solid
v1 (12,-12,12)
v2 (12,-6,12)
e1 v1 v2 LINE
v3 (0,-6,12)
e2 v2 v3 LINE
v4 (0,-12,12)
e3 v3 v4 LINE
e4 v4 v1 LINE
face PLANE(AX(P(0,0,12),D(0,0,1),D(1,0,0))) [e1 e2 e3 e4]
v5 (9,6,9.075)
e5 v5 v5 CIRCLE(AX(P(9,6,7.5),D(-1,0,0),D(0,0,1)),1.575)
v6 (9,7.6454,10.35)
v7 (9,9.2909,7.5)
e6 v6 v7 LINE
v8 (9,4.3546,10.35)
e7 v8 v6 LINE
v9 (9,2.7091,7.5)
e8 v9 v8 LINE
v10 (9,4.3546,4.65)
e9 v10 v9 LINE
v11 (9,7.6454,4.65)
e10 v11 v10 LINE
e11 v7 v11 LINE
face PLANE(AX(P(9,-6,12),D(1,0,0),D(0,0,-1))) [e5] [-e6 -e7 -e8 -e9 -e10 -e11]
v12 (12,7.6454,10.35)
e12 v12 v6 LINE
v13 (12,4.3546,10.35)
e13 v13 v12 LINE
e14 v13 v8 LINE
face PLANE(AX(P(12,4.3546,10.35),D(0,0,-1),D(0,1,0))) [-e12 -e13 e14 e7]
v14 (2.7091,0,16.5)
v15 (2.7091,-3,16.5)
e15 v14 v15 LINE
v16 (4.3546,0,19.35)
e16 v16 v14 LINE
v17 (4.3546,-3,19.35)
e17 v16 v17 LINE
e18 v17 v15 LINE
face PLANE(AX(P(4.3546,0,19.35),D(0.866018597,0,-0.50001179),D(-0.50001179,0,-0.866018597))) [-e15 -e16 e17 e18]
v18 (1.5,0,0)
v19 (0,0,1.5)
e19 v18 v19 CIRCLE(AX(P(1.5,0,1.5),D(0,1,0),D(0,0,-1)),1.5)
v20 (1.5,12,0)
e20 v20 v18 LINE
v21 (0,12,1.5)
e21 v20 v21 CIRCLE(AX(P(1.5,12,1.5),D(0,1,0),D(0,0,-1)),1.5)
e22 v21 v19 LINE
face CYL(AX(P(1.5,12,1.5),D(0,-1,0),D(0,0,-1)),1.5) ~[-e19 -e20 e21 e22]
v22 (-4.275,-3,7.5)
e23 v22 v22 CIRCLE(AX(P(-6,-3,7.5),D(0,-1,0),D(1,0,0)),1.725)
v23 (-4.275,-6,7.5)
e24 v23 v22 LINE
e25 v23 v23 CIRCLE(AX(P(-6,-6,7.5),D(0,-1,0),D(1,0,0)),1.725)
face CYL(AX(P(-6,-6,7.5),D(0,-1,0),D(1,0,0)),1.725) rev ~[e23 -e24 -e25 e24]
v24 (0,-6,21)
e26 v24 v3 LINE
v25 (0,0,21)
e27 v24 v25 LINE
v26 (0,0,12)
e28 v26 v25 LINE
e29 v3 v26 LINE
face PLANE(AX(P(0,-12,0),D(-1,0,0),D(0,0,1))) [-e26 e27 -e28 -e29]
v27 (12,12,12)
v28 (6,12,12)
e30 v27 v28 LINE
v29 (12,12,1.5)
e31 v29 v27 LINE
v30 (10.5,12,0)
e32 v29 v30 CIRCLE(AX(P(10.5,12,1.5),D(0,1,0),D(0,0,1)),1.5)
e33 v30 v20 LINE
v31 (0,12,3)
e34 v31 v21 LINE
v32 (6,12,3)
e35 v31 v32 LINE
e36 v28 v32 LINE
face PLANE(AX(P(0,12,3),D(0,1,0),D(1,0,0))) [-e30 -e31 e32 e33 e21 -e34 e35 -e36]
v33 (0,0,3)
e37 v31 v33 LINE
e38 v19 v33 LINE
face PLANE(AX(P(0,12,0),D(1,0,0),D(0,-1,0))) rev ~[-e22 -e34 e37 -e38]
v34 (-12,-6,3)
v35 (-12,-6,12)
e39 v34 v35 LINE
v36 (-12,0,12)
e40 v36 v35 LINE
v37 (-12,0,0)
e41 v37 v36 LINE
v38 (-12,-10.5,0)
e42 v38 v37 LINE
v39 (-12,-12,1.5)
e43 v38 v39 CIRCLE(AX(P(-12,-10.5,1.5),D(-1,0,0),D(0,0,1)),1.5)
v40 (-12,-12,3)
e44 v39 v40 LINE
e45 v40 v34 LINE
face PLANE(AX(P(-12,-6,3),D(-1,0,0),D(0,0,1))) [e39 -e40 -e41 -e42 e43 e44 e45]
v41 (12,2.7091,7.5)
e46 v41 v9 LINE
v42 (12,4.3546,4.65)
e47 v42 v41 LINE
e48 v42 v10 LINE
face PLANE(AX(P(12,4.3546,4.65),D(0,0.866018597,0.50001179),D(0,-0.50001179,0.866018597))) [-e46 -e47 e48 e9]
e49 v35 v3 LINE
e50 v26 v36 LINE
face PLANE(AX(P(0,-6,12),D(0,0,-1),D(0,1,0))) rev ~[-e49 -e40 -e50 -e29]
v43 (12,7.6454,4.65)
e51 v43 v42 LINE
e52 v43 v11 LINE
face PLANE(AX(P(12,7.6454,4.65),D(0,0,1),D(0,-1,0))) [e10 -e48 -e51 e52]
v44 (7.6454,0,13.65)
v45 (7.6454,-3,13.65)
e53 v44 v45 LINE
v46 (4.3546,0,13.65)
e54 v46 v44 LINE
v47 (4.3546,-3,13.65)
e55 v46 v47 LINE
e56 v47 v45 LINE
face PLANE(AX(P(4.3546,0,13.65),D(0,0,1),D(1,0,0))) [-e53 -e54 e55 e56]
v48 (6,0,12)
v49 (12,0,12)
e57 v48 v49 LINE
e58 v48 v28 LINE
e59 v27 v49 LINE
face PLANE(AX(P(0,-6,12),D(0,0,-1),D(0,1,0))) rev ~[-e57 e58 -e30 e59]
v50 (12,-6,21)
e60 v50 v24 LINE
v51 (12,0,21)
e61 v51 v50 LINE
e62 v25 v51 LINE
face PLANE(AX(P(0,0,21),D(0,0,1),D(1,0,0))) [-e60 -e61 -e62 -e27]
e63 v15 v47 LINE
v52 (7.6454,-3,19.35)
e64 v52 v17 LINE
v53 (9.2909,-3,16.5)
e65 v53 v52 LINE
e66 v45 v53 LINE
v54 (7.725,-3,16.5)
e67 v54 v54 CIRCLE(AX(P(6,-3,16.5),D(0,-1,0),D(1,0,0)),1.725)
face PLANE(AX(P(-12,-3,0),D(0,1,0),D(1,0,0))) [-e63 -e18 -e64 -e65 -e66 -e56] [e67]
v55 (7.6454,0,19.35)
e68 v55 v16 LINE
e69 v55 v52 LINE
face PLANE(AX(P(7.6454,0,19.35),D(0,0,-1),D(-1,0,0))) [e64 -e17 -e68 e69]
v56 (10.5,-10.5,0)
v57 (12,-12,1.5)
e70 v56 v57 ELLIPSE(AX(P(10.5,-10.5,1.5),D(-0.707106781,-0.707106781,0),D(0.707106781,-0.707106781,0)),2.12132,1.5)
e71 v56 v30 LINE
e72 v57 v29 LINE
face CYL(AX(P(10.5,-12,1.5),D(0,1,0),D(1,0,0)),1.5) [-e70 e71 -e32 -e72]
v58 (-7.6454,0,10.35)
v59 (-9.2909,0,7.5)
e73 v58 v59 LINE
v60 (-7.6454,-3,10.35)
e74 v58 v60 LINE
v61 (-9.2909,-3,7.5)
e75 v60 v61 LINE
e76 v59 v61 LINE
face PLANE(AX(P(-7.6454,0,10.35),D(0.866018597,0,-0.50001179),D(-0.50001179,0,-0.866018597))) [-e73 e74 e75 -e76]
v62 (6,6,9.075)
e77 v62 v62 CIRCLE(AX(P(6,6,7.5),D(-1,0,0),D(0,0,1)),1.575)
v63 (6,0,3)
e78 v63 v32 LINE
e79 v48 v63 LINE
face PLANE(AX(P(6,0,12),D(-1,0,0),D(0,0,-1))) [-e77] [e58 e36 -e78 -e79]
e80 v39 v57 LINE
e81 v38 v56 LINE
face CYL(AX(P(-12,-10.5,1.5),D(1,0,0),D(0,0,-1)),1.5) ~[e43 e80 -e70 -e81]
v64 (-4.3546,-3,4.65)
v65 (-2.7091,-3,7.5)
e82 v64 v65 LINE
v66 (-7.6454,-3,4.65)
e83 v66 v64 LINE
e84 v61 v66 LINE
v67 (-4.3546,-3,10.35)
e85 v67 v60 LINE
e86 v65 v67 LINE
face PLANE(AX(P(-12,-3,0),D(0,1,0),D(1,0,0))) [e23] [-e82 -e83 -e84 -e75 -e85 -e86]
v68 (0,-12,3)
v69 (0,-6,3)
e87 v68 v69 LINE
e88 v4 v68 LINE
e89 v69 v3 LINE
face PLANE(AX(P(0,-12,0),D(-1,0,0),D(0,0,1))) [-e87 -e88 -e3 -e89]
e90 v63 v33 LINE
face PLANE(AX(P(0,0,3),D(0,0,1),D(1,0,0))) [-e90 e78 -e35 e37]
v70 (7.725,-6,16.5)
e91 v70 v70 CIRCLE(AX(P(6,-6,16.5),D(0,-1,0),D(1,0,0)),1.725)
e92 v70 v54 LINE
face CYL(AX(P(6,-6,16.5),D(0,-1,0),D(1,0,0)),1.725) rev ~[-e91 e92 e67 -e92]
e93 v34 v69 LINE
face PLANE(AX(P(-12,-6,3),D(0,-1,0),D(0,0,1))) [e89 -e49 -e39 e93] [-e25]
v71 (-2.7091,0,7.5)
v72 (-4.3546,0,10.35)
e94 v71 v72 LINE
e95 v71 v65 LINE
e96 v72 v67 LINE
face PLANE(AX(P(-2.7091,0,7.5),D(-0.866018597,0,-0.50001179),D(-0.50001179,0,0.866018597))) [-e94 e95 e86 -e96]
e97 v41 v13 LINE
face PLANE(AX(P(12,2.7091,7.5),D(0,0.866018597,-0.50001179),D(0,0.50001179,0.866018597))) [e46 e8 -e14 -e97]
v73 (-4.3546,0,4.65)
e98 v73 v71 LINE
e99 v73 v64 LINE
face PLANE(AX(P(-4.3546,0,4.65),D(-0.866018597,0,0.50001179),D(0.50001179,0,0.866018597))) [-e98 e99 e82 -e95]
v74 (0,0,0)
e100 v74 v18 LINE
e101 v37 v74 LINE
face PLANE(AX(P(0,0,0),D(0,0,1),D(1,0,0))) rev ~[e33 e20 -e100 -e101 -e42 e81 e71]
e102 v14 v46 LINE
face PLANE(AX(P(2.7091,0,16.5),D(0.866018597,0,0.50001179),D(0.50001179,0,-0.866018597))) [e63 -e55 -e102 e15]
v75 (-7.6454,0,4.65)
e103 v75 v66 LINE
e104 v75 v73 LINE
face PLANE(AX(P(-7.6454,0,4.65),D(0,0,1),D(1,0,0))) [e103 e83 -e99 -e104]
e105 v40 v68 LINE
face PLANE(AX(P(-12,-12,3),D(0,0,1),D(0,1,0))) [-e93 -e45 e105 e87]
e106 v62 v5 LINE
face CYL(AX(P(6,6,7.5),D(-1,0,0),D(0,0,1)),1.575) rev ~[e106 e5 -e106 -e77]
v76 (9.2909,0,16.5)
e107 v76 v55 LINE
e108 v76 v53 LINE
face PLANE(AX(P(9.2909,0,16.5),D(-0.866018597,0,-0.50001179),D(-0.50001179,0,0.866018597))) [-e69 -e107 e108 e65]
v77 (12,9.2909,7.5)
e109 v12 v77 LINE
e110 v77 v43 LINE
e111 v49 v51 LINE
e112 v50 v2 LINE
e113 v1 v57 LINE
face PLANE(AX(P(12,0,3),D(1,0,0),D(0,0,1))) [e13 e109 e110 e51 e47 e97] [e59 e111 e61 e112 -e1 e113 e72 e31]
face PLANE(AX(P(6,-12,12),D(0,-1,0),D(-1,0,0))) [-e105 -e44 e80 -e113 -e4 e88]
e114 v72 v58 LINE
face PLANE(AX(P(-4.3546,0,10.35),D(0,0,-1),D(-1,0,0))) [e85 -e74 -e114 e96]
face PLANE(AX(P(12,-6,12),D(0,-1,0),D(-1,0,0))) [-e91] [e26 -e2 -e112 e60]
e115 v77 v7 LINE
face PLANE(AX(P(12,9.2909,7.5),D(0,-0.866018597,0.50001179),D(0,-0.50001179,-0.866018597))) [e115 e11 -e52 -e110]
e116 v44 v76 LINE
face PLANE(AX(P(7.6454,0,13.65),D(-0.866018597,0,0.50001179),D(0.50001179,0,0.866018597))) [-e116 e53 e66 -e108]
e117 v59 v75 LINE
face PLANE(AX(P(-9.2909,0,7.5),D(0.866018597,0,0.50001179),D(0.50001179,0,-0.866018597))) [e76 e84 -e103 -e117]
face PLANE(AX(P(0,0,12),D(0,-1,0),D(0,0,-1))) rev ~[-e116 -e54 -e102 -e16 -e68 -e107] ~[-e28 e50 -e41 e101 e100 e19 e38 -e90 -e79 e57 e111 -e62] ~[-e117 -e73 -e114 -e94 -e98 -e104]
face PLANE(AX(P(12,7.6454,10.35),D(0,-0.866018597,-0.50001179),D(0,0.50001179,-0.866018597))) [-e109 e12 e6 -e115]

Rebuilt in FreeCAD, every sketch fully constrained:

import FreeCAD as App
import Part
import Sketcher
from FreeCAD import Vector
Q = App.Units.Quantity


def edges_at(feature, points):
    """Names of the edges that pass closest to the given points."""
    edges = feature.Shape.Edges
    near = lambda p: min(range(len(edges)), key=lambda i: edges[i].distToShape(Part.Vertex(*p))[0])
    return sorted({f"Edge{near(p) + 1}" for p in points})


def add_polygon(sketch, points):
    """Adds a closed chain of lines whose ends are joined by coincident constraints."""
    first, n = sketch.GeometryCount, len(points)
    for a, b in zip(points, points[1:] + points[:1]):
        sketch.addGeometry(Part.LineSegment(App.Vector(*a, 0), App.Vector(*b, 0)), False)
    for i in range(n):
        sketch.addConstraint(Sketcher.Constraint("Coincident", first + i, 2, first + (i + 1) % n, 1))

doc = App.newDocument("Part")
params = doc.addObject("Spreadsheet::Sheet", "Params")
for row, (alias, value) in enumerate([
    ("sketch1_width", "12 mm"),
    ("pad1_length", "3 mm"),
    ("sketch2_width", "12 mm"),
    ("pad2_length", "9 mm"),
    ("sketch3_width", "12 mm"),
    ("sketch3_height", "6 mm"),
    ("pad3_length", "9 mm"),
    ("sketch4_diameter", "3.45 mm"),
    ("pocket1_length", "3 mm"),
    ("pocket2_length", "3 mm"),
    ("sketch6_diameter", "3.45 mm"),
    ("pocket3_length", "3 mm"),
    ("pocket4_length", "3 mm"),
    ("sketch8_width", "12 mm"),
    ("sketch9_width", "6 mm"),
    ("sketch9_height", "9 mm"),
    ("pocket6_length", "12 mm"),
    ("sketch10_width", "6 mm"),
    ("sketch10_height", "9 mm"),
    ("pad4_length", "12 mm"),
    ("sketch11_diameter", "3.15 mm"),
    ("pocket7_length", "3 mm"),
    ("pocket8_length", "3 mm"),
    ("sketch13_width", "6 mm"),
    ("sketch13_height", "9 mm"),
    ("pad5_length", "12 mm"),
    ("sketch14_width", "6 mm"),
    ("sketch14_height", "9 mm"),
    ("pocket9_length", "12 mm"),
    ("sketch15_diameter", "3.45 mm"),
    ("pocket10_length", "3 mm"),
    ("pocket11_length", "3 mm"),
    ("sketch17_width", "12 mm"),
    ("sketch17_height", "6 mm"),
    ("pad6_length", "9 mm"),
    ("sketch18_width", "12 mm"),
    ("sketch18_height", "6 mm"),
    ("pocket12_length", "9 mm"),
    ("sketch19_diameter", "3.45 mm"),
    ("pocket13_length", "3 mm"),
    ("pocket14_length", "3 mm"),
    ("fillet_radius", "1.5 mm"),
], start=1):
    params.set(f"A{row}", alias)
    params.set(f"B{row}", "=" + value)
    params.setAlias(f"B{row}", alias)

body = doc.addObject("PartDesign::Body", "Body")

# Sketch on XY plane
sketch1 = body.newObject("Sketcher::SketchObject", "Sketch")
sketch1.AttachmentSupport = (doc.getObject("XY_Plane"), [""])
sketch1.MapMode = "FlatFace"
add_polygon(sketch1, [(0, 12), (0, 0), (-12, 0), (-12, -12), (0, -12), (0, -24), (12, -24), (12, -12), (24, -12), (24, 0), (12, 0), (12, 12)])  # lines 0-11
sketch1.addConstraint(Sketcher.Constraint("Vertical", 0))
sketch1.addConstraint(Sketcher.Constraint("Horizontal", 1))
sketch1.addConstraint(Sketcher.Constraint("Vertical", 2))
sketch1.addConstraint(Sketcher.Constraint("Horizontal", 3))
sketch1.addConstraint(Sketcher.Constraint("Vertical", 4))
sketch1.addConstraint(Sketcher.Constraint("Horizontal", 5))
sketch1.addConstraint(Sketcher.Constraint("Vertical", 6))
sketch1.addConstraint(Sketcher.Constraint("Horizontal", 7))
sketch1.addConstraint(Sketcher.Constraint("Vertical", 8))
sketch1.addConstraint(Sketcher.Constraint("Horizontal", 9))
sketch1.addConstraint(Sketcher.Constraint("Vertical", 10))
sketch1.addConstraint(Sketcher.Constraint("Horizontal", 11))
sketch1.addConstraint(Sketcher.Constraint("Coincident", 0, 2, -1, 1))
sketch1.addConstraint(Sketcher.Constraint("Symmetric", 1, 2, 9, 2, -1, 1))
sketch1.addConstraint(Sketcher.Constraint("Symmetric", 3, 2, 11, 2, -1, 1))
sketch1.addConstraint(Sketcher.Constraint("Symmetric", 2, 2, 6, 2, -2))
sketch1.addConstraint(Sketcher.Constraint("Equal", 5, 7))
sketch1.addConstraint(Sketcher.Constraint("Equal", 11, 0))
sketch1.addConstraint(Sketcher.Constraint("Equal", 2, 4))
sketch1.addConstraint(Sketcher.Constraint("DistanceX", 1, 2, 1, 1, 12.0))
sketch1.setExpression("Constraints[31]", "Params.sketch1_width")
pad1 = body.newObject("PartDesign::Pad", "Pad")
pad1.Profile = sketch1
pad1.setExpression("Length", "Params.pad1_length")

# Sketch on XY plane
sketch2 = body.newObject("Sketcher::SketchObject", "Sketch001")
sketch2.AttachmentSupport = (doc.getObject("XY_Plane"), [""])
sketch2.MapMode = "FlatFace"
sketch2.AttachmentOffset = App.Placement(Vector(0, 0, 3), App.Rotation())
add_polygon(sketch2, [(0, -6), (-12, -6), (-12, -12), (0, -12), (0, -24), (6, -24), (6, -12), (24, -12), (24, -6), (12, -6), (12, 0), (6, 0), (6, 12), (0, 12)])  # lines 0-13
sketch2.addConstraint(Sketcher.Constraint("Horizontal", 0))
sketch2.addConstraint(Sketcher.Constraint("Vertical", 1))
sketch2.addConstraint(Sketcher.Constraint("Horizontal", 2))
sketch2.addConstraint(Sketcher.Constraint("Vertical", 3))
sketch2.addConstraint(Sketcher.Constraint("Horizontal", 4))
sketch2.addConstraint(Sketcher.Constraint("Vertical", 5))
sketch2.addConstraint(Sketcher.Constraint("Horizontal", 6))
sketch2.addConstraint(Sketcher.Constraint("Vertical", 7))
sketch2.addConstraint(Sketcher.Constraint("Horizontal", 8))
sketch2.addConstraint(Sketcher.Constraint("Vertical", 9))
sketch2.addConstraint(Sketcher.Constraint("Horizontal", 10))
sketch2.addConstraint(Sketcher.Constraint("Vertical", 11))
sketch2.addConstraint(Sketcher.Constraint("Horizontal", 12))
sketch2.addConstraint(Sketcher.Constraint("Vertical", 13))
sketch2.addConstraint(Sketcher.Constraint("Symmetric", 2, 2, 12, 2, -1, 1))
sketch2.addConstraint(Sketcher.Constraint("Symmetric", 0, 2, 8, 2, -2))
sketch2.addConstraint(Sketcher.Constraint("Symmetric", 5, 2, 11, 2, -1))
sketch2.addConstraint(Sketcher.Constraint("PointOnObject", 2, 2, -2))
sketch2.addConstraint(Sketcher.Constraint("PointOnObject", 9, 2, -1))
sketch2.addConstraint(Sketcher.Constraint("Equal", 2, 8))
sketch2.addConstraint(Sketcher.Constraint("Equal", 4, 10))
sketch2.addConstraint(Sketcher.Constraint("Equal", 12, 1))
sketch2.addConstraint(Sketcher.Constraint("Equal", 8, 3))
sketch2.addConstraint(Sketcher.Constraint("Equal", 7, 9))
sketch2.addConstraint(Sketcher.Constraint("DistanceX", 0, 2, 0, 1, 12.0))
sketch2.setExpression("Constraints[38]", "Params.sketch2_width")
pad2 = body.newObject("PartDesign::Pad", "Pad001")
pad2.Profile = sketch2
pad2.setExpression("Length", "Params.pad2_length")

# Sketch on XY plane
sketch3 = body.newObject("Sketcher::SketchObject", "Sketch002")
sketch3.AttachmentSupport = (doc.getObject("XY_Plane"), [""])
sketch3.MapMode = "FlatFace"
sketch3.AttachmentOffset = App.Placement(Vector(0, 0, 12), App.Rotation())
add_polygon(sketch3, [(12, -6), (0, -6), (0, -12), (12, -12)])  # lines 0-3
sketch3.addConstraint(Sketcher.Constraint("Horizontal", 0))
sketch3.addConstraint(Sketcher.Constraint("Vertical", 1))
sketch3.addConstraint(Sketcher.Constraint("Horizontal", 2))
sketch3.addConstraint(Sketcher.Constraint("Vertical", 3))
sketch3.addConstraint(Sketcher.Constraint("PointOnObject", 0, 2, -2))
sketch3.addConstraint(Sketcher.Constraint("DistanceX", 0, 2, 0, 1, 12.0))
sketch3.addConstraint(Sketcher.Constraint("DistanceY", 1, 2, 1, 1, 6.0))
sketch3.addConstraint(Sketcher.Constraint("DistanceY", 0, 2, -1, 1, 6.0))
sketch3.setExpression("Constraints[9]", "Params.sketch3_width")
sketch3.setExpression("Constraints[10]", "Params.sketch3_height")
pad3 = body.newObject("PartDesign::Pad", "Pad002")
pad3.Profile = sketch3
pad3.setExpression("Length", "Params.pad3_length")

# Sketch on XZ plane
sketch4 = body.newObject("Sketcher::SketchObject", "Sketch003")
sketch4.AttachmentSupport = (doc.getObject("XZ_Plane"), [""])
sketch4.MapMode = "FlatFace"
sketch4.AttachmentOffset = App.Placement(Vector(0, 0, 6), App.Rotation())
sketch4.addGeometry(Part.Circle(Vector(-6, 7.5, 0), Vector(0, 0, 1), 1.7), False)
sketch4.addGeometry(Part.Circle(Vector(6, 16.5, 0), Vector(0, 0, 1), 1.7), False)
sketch4.addGeometry(Part.Circle(Vector(18, 7.5, 0), Vector(0, 0, 1), 1.7), False)
sketch4.addConstraint(Sketcher.Constraint("Equal", 0, 1))
sketch4.addConstraint(Sketcher.Constraint("Equal", 1, 2))
sketch4.addConstraint(Sketcher.Constraint("Horizontal", 0, 3, 2, 3))
sketch4.addConstraint(Sketcher.Constraint("Diameter", 0, 3.45))
sketch4.addConstraint(Sketcher.Constraint("DistanceX", 0, 3, -1, 1, 6.0))
sketch4.addConstraint(Sketcher.Constraint("DistanceX", -1, 1, 1, 3, 6.0))
sketch4.addConstraint(Sketcher.Constraint("DistanceX", -1, 1, 2, 3, 18.0))
sketch4.addConstraint(Sketcher.Constraint("DistanceY", 0, 3, 1, 3, 9.0))
sketch4.addConstraint(Sketcher.Constraint("DistanceY", -1, 1, 0, 3, 7.5))
sketch4.setExpression("Constraints[3]", "Params.sketch4_diameter")
pocket1 = body.newObject("PartDesign::Pocket", "Pocket")
pocket1.Profile = sketch4
pocket1.setExpression("Length", "Params.pocket1_length")
pocket1.Reversed = True

# Sketch on XZ plane
sketch5 = body.newObject("Sketcher::SketchObject", "Sketch004")
sketch5.AttachmentSupport = (doc.getObject("XZ_Plane"), [""])
sketch5.MapMode = "FlatFace"
sketch5.AttachmentOffset = App.Placement(Vector(0, 0, 12), App.Rotation())
add_polygon(sketch5, [(-2.7, 7.5), (-4.4, 10.3), (-7.6, 10.3), (-9.3, 7.5), (-7.6, 4.7), (-4.4, 4.7)])  # lines 0-5
add_polygon(sketch5, [(21.3, 7.5), (19.6, 10.3), (16.4, 10.3), (14.7, 7.5), (16.4, 4.7), (19.6, 4.7)])  # lines 6-11
add_polygon(sketch5, [(9.3, 16.5), (7.6, 19.4), (4.4, 19.4), (2.7, 16.5), (4.4, 13.7), (7.6, 13.7)])  # lines 12-17
sketch5.addConstraint(Sketcher.Constraint("Horizontal", 1))
sketch5.addConstraint(Sketcher.Constraint("Horizontal", 4))
sketch5.addConstraint(Sketcher.Constraint("Horizontal", 7))
sketch5.addConstraint(Sketcher.Constraint("Horizontal", 10))
sketch5.addConstraint(Sketcher.Constraint("Horizontal", 13))
sketch5.addConstraint(Sketcher.Constraint("Horizontal", 16))
sketch5.addConstraint(Sketcher.Constraint("Parallel", 0, 3))
sketch5.addConstraint(Sketcher.Constraint("Parallel", 2, 5))
sketch5.addConstraint(Sketcher.Constraint("Parallel", 3, 6))
sketch5.addConstraint(Sketcher.Constraint("Parallel", 5, 8))
sketch5.addConstraint(Sketcher.Constraint("Parallel", 6, 9))
sketch5.addConstraint(Sketcher.Constraint("Parallel", 8, 11))
sketch5.addConstraint(Sketcher.Constraint("Parallel", 9, 12))
sketch5.addConstraint(Sketcher.Constraint("Parallel", 11, 14))
sketch5.addConstraint(Sketcher.Constraint("Parallel", 12, 15))
sketch5.addConstraint(Sketcher.Constraint("Parallel", 14, 17))
sketch5.addConstraint(Sketcher.Constraint("Horizontal", 2, 2, 5, 2))
sketch5.addConstraint(Sketcher.Constraint("Horizontal", 1, 2, 6, 2))
sketch5.addConstraint(Sketcher.Constraint("Horizontal", 5, 2, 8, 2))
sketch5.addConstraint(Sketcher.Constraint("Horizontal", 4, 2, 9, 2))
sketch5.addConstraint(Sketcher.Constraint("Horizontal", 8, 2, 11, 2))
sketch5.addConstraint(Sketcher.Constraint("Horizontal", 14, 2, 17, 2))
sketch5.addConstraint(Sketcher.Constraint("Vertical", 1, 2, 3, 2))
sketch5.addConstraint(Sketcher.Constraint("Vertical", 0, 2, 4, 2))
sketch5.addConstraint(Sketcher.Constraint("Vertical", 13, 2, 15, 2))
sketch5.addConstraint(Sketcher.Constraint("Equal", 4, 7))
sketch5.addConstraint(Sketcher.Constraint("Equal", 10, 13))
sketch5.addConstraint(Sketcher.Constraint("Equal", 11, 12))
sketch5.addConstraint(Sketcher.Constraint("Angle", 0, Q("120.0008 deg")))
sketch5.addConstraint(Sketcher.Constraint("DistanceY", 2, 2, 1, 2, 2.85))
sketch5.addConstraint(Sketcher.Constraint("DistanceX", 0, 2, 6, 2, 24.0))
sketch5.addConstraint(Sketcher.Constraint("DistanceY", 7, 2, 12, 2, 9.0))
sketch5.addConstraint(Sketcher.Constraint("DistanceX", 12, 2, 6, 2, 12.0))
sketch5.addConstraint(Sketcher.Constraint("DistanceY", -1, 1, 2, 2, 7.5))
sketch5.addConstraint(Sketcher.Constraint("DistanceX", 1, 2, 1, 1, 3.2908))
sketch5.addConstraint(Sketcher.Constraint("DistanceX", 2, 2, -1, 1, 9.291))
pocket2 = body.newObject("PartDesign::Pocket", "Pocket001")
pocket2.Profile = sketch5
pocket2.setExpression("Length", "Params.pocket2_length")

# Sketch on YZ plane
sketch6 = body.newObject("Sketcher::SketchObject", "Sketch005")
sketch6.AttachmentSupport = (doc.getObject("YZ_Plane"), [""])
sketch6.MapMode = "FlatFace"
sketch6.AttachmentOffset = App.Placement(Vector(0, 0, 6), App.Rotation())
sketch6.addGeometry(Part.Circle(Vector(6, 7.5, 0), Vector(0, 0, 1), 1.7), False)
sketch6.addGeometry(Part.Circle(Vector(-18, 7.5, 0), Vector(0, 0, 1), 1.7), False)
sketch6.addConstraint(Sketcher.Constraint("Equal", 0, 1))
sketch6.addConstraint(Sketcher.Constraint("Horizontal", 0, 3, 1, 3))
sketch6.addConstraint(Sketcher.Constraint("Diameter", 0, 3.45))
sketch6.addConstraint(Sketcher.Constraint("DistanceX", -1, 1, 0, 3, 6.0))
sketch6.addConstraint(Sketcher.Constraint("DistanceX", 1, 3, -1, 1, 18.0))
sketch6.addConstraint(Sketcher.Constraint("DistanceY", -1, 1, 0, 3, 7.5))
sketch6.setExpression("Constraints[2]", "Params.sketch6_diameter")
pocket3 = body.newObject("PartDesign::Pocket", "Pocket002")
pocket3.Profile = sketch6
pocket3.setExpression("Length", "Params.pocket3_length")

# Sketch on YZ plane
sketch7 = body.newObject("Sketcher::SketchObject", "Sketch006")
sketch7.AttachmentSupport = (doc.getObject("YZ_Plane"), [""])
sketch7.MapMode = "FlatFace"
add_polygon(sketch7, [(9.3, 7.5), (7.6, 4.7), (4.4, 4.7), (2.7, 7.5), (4.4, 10.3), (7.6, 10.3)])  # lines 0-5
add_polygon(sketch7, [(-14.7, 7.5), (-16.4, 4.7), (-19.6, 4.7), (-21.3, 7.5), (-19.6, 10.3), (-16.4, 10.3)])  # lines 6-11
sketch7.addConstraint(Sketcher.Constraint("Horizontal", 1))
sketch7.addConstraint(Sketcher.Constraint("Horizontal", 4))
sketch7.addConstraint(Sketcher.Constraint("Horizontal", 7))
sketch7.addConstraint(Sketcher.Constraint("Horizontal", 10))
sketch7.addConstraint(Sketcher.Constraint("Parallel", 0, 3))
sketch7.addConstraint(Sketcher.Constraint("Parallel", 2, 5))
sketch7.addConstraint(Sketcher.Constraint("Parallel", 3, 6))
sketch7.addConstraint(Sketcher.Constraint("Parallel", 5, 8))
sketch7.addConstraint(Sketcher.Constraint("Parallel", 6, 9))
sketch7.addConstraint(Sketcher.Constraint("Parallel", 8, 11))
sketch7.addConstraint(Sketcher.Constraint("Horizontal", 2, 2, 5, 2))
sketch7.addConstraint(Sketcher.Constraint("Horizontal", 1, 2, 6, 2))
sketch7.addConstraint(Sketcher.Constraint("Horizontal", 5, 2, 8, 2))
sketch7.addConstraint(Sketcher.Constraint("Horizontal", 4, 2, 9, 2))
sketch7.addConstraint(Sketcher.Constraint("Horizontal", 8, 2, 11, 2))
sketch7.addConstraint(Sketcher.Constraint("Vertical", 1, 2, 3, 2))
sketch7.addConstraint(Sketcher.Constraint("Vertical", 0, 2, 4, 2))
sketch7.addConstraint(Sketcher.Constraint("Equal", 4, 7))
sketch7.addConstraint(Sketcher.Constraint("Angle", 0, Q("-120.0008 deg")))
sketch7.addConstraint(Sketcher.Constraint("DistanceY", 1, 2, 2, 2, 2.85))
sketch7.addConstraint(Sketcher.Constraint("DistanceX", 6, 2, 0, 2, 24.0))
sketch7.addConstraint(Sketcher.Constraint("DistanceY", -1, 1, 2, 2, 7.5))
sketch7.addConstraint(Sketcher.Constraint("DistanceX", 1, 2, 1, 1, 3.2908))
sketch7.addConstraint(Sketcher.Constraint("DistanceX", -1, 1, 2, 2, 2.709))
pocket4 = body.newObject("PartDesign::Pocket", "Pocket003")
pocket4.Profile = sketch7
pocket4.setExpression("Length", "Params.pocket4_length")
pocket4.Reversed = True

# Sketch on XY plane
sketch8 = body.newObject("Sketcher::SketchObject", "Sketch007")
sketch8.AttachmentSupport = (doc.getObject("XY_Plane"), [""])
sketch8.MapMode = "FlatFace"
add_polygon(sketch8, [(0, -12), (12, -12), (12, -24), (0, -24)])  # lines 0-3
add_polygon(sketch8, [(24, 0), (24, -12), (12, -12), (12, 0)])  # lines 4-7
sketch8.addConstraint(Sketcher.Constraint("Horizontal", 0))
sketch8.addConstraint(Sketcher.Constraint("Vertical", 1))
sketch8.addConstraint(Sketcher.Constraint("Horizontal", 2))
sketch8.addConstraint(Sketcher.Constraint("Vertical", 3))
sketch8.addConstraint(Sketcher.Constraint("Vertical", 4))
sketch8.addConstraint(Sketcher.Constraint("Horizontal", 5))
sketch8.addConstraint(Sketcher.Constraint("Vertical", 6))
sketch8.addConstraint(Sketcher.Constraint("Horizontal", 7))
sketch8.addConstraint(Sketcher.Constraint("Coincident", 5, 2, 0, 2))
sketch8.addConstraint(Sketcher.Constraint("PointOnObject", 2, 2, -2))
sketch8.addConstraint(Sketcher.Constraint("PointOnObject", 6, 2, -1))
sketch8.addConstraint(Sketcher.Constraint("Equal", 2, 5))
sketch8.addConstraint(Sketcher.Constraint("Equal", 7, 1))
sketch8.addConstraint(Sketcher.Constraint("Equal", 3, 4))
sketch8.addConstraint(Sketcher.Constraint("DistanceX", 0, 1, 0, 2, 12.0))
sketch8.setExpression("Constraints[22]", "Params.sketch8_width")
pocket5 = body.newObject("PartDesign::Pocket", "Pocket004")
pocket5.Profile = sketch8
pocket5.Type = "ThroughAll"
pocket5.Reversed = True

# Sketch on XZ plane
sketch9 = body.newObject("Sketcher::SketchObject", "Sketch008")
sketch9.AttachmentSupport = (doc.getObject("XZ_Plane"), [""])
sketch9.MapMode = "FlatFace"
sketch9.AttachmentOffset = App.Placement(Vector(0, 0, -12), App.Rotation())
add_polygon(sketch9, [(0, 12), (6, 12), (6, 3), (0, 3)])  # lines 0-3
sketch9.addConstraint(Sketcher.Constraint("Horizontal", 0))
sketch9.addConstraint(Sketcher.Constraint("Vertical", 1))
sketch9.addConstraint(Sketcher.Constraint("Horizontal", 2))
sketch9.addConstraint(Sketcher.Constraint("Vertical", 3))
sketch9.addConstraint(Sketcher.Constraint("PointOnObject", 2, 2, -2))
sketch9.addConstraint(Sketcher.Constraint("DistanceX", 0, 1, 0, 2, 6.0))
sketch9.addConstraint(Sketcher.Constraint("DistanceY", 1, 2, 1, 1, 9.0))
sketch9.addConstraint(Sketcher.Constraint("DistanceY", -1, 1, 0, 2, 12.0))
sketch9.setExpression("Constraints[9]", "Params.sketch9_width")
sketch9.setExpression("Constraints[10]", "Params.sketch9_height")
pocket6 = body.newObject("PartDesign::Pocket", "Pocket005")
pocket6.Profile = sketch9
pocket6.setExpression("Length", "Params.pocket6_length")
pocket6.Reversed = True

# Sketch on XZ plane
sketch10 = body.newObject("Sketcher::SketchObject", "Sketch009")
sketch10.AttachmentSupport = (doc.getObject("XZ_Plane"), [""])
sketch10.MapMode = "FlatFace"
add_polygon(sketch10, [(12, 12), (12, 3), (6, 3), (6, 12)])  # lines 0-3
sketch10.addConstraint(Sketcher.Constraint("Vertical", 0))
sketch10.addConstraint(Sketcher.Constraint("Horizontal", 1))
sketch10.addConstraint(Sketcher.Constraint("Vertical", 2))
sketch10.addConstraint(Sketcher.Constraint("Horizontal", 3))
sketch10.addConstraint(Sketcher.Constraint("DistanceX", 1, 2, 1, 1, 6.0))
sketch10.addConstraint(Sketcher.Constraint("DistanceY", 0, 2, 0, 1, 9.0))
sketch10.addConstraint(Sketcher.Constraint("DistanceX", -1, 1, 0, 2, 12.0))
sketch10.addConstraint(Sketcher.Constraint("DistanceY", -1, 1, 0, 2, 3.0))
sketch10.setExpression("Constraints[8]", "Params.sketch10_width")
sketch10.setExpression("Constraints[9]", "Params.sketch10_height")
pad4 = body.newObject("PartDesign::Pad", "Pad003")
pad4.Profile = sketch10
pad4.setExpression("Length", "Params.pad4_length")
pad4.Reversed = True

# Sketch on YZ plane
sketch11 = body.newObject("Sketcher::SketchObject", "Sketch010")
sketch11.AttachmentSupport = (doc.getObject("YZ_Plane"), [""])
sketch11.MapMode = "FlatFace"
sketch11.AttachmentOffset = App.Placement(Vector(0, 0, 6), App.Rotation())
sketch11.addGeometry(Part.Circle(Vector(6, 7.5, 0), Vector(0, 0, 1), 1.6), False)
sketch11.addConstraint(Sketcher.Constraint("Diameter", 0, 3.15))
sketch11.addConstraint(Sketcher.Constraint("DistanceX", -1, 1, 0, 3, 6.0))
sketch11.addConstraint(Sketcher.Constraint("DistanceY", -1, 1, 0, 3, 7.5))
sketch11.setExpression("Constraints[0]", "Params.sketch11_diameter")
pocket7 = body.newObject("PartDesign::Pocket", "Pocket006")
pocket7.Profile = sketch11
pocket7.setExpression("Length", "Params.pocket7_length")
pocket7.Reversed = True

# Sketch on YZ plane
sketch12 = body.newObject("Sketcher::SketchObject", "Sketch011")
sketch12.AttachmentSupport = (doc.getObject("YZ_Plane"), [""])
sketch12.MapMode = "FlatFace"
sketch12.AttachmentOffset = App.Placement(Vector(0, 0, 12), App.Rotation())
add_polygon(sketch12, [(9.3, 7.5), (7.6, 10.3), (4.4, 10.3), (2.7, 7.5), (4.4, 4.7), (7.6, 4.7)])  # lines 0-5
sketch12.addConstraint(Sketcher.Constraint("Horizontal", 1))
sketch12.addConstraint(Sketcher.Constraint("Horizontal", 4))
sketch12.addConstraint(Sketcher.Constraint("Parallel", 0, 3))
sketch12.addConstraint(Sketcher.Constraint("Parallel", 2, 5))
sketch12.addConstraint(Sketcher.Constraint("Horizontal", 2, 2, 5, 2))
sketch12.addConstraint(Sketcher.Constraint("Vertical", 1, 2, 3, 2))
sketch12.addConstraint(Sketcher.Constraint("Vertical", 0, 2, 4, 2))
sketch12.addConstraint(Sketcher.Constraint("DistanceY", 3, 2, 1, 2, 5.7))
sketch12.addConstraint(Sketcher.Constraint("Angle", 0, Q("120.0008 deg")))
sketch12.addConstraint(Sketcher.Constraint("DistanceY", -1, 1, 2, 2, 7.5))
sketch12.addConstraint(Sketcher.Constraint("DistanceX", 1, 2, 1, 1, 3.2908))
sketch12.addConstraint(Sketcher.Constraint("DistanceX", -1, 1, 2, 2, 2.709))
pocket8 = body.newObject("PartDesign::Pocket", "Pocket007")
pocket8.Profile = sketch12
pocket8.setExpression("Length", "Params.pocket8_length")

# Sketch on YZ plane
sketch13 = body.newObject("Sketcher::SketchObject", "Sketch012")
sketch13.AttachmentSupport = (doc.getObject("YZ_Plane"), [""])
sketch13.MapMode = "FlatFace"
add_polygon(sketch13, [(-6, 12), (0, 12), (0, 3), (-6, 3)])  # lines 0-3
sketch13.addConstraint(Sketcher.Constraint("Horizontal", 0))
sketch13.addConstraint(Sketcher.Constraint("Vertical", 1))
sketch13.addConstraint(Sketcher.Constraint("Horizontal", 2))
sketch13.addConstraint(Sketcher.Constraint("Vertical", 3))
sketch13.addConstraint(Sketcher.Constraint("PointOnObject", 0, 2, -2))
sketch13.addConstraint(Sketcher.Constraint("DistanceX", 0, 1, 0, 2, 6.0))
sketch13.addConstraint(Sketcher.Constraint("DistanceY", 1, 2, 1, 1, 9.0))
sketch13.addConstraint(Sketcher.Constraint("DistanceY", -1, 1, 0, 2, 12.0))
sketch13.setExpression("Constraints[9]", "Params.sketch13_width")
sketch13.setExpression("Constraints[10]", "Params.sketch13_height")
pad5 = body.newObject("PartDesign::Pad", "Pad004")
pad5.Profile = sketch13
pad5.setExpression("Length", "Params.pad5_length")
pad5.Reversed = True

# Sketch on YZ plane
sketch14 = body.newObject("Sketcher::SketchObject", "Sketch013")
sketch14.AttachmentSupport = (doc.getObject("YZ_Plane"), [""])
sketch14.MapMode = "FlatFace"
sketch14.AttachmentOffset = App.Placement(Vector(0, 0, -12), App.Rotation())
add_polygon(sketch14, [(-12, 3), (-12, 12), (-6, 12), (-6, 3)])  # lines 0-3
sketch14.addConstraint(Sketcher.Constraint("Vertical", 0))
sketch14.addConstraint(Sketcher.Constraint("Horizontal", 1))
sketch14.addConstraint(Sketcher.Constraint("Vertical", 2))
sketch14.addConstraint(Sketcher.Constraint("Horizontal", 3))
sketch14.addConstraint(Sketcher.Constraint("DistanceX", 1, 1, 1, 2, 6.0))
sketch14.addConstraint(Sketcher.Constraint("DistanceY", 0, 1, 0, 2, 9.0))
sketch14.addConstraint(Sketcher.Constraint("DistanceX", 1, 2, -1, 1, 6.0))
sketch14.addConstraint(Sketcher.Constraint("DistanceY", -1, 1, 0, 2, 12.0))
sketch14.setExpression("Constraints[8]", "Params.sketch14_width")
sketch14.setExpression("Constraints[9]", "Params.sketch14_height")
pocket9 = body.newObject("PartDesign::Pocket", "Pocket008")
pocket9.Profile = sketch14
pocket9.setExpression("Length", "Params.pocket9_length")
pocket9.Reversed = True

# Sketch on XZ plane
sketch15 = body.newObject("Sketcher::SketchObject", "Sketch014")
sketch15.AttachmentSupport = (doc.getObject("XZ_Plane"), [""])
sketch15.MapMode = "FlatFace"
sketch15.AttachmentOffset = App.Placement(Vector(0, 0, 6), App.Rotation())
sketch15.addGeometry(Part.Circle(Vector(-6, 7.5, 0), Vector(0, 0, 1), 1.7), False)
sketch15.addConstraint(Sketcher.Constraint("Diameter", 0, 3.45))
sketch15.addConstraint(Sketcher.Constraint("DistanceX", 0, 3, -1, 1, 6.0))
sketch15.addConstraint(Sketcher.Constraint("DistanceY", -1, 1, 0, 3, 7.5))
sketch15.setExpression("Constraints[0]", "Params.sketch15_diameter")
pocket10 = body.newObject("PartDesign::Pocket", "Pocket009")
pocket10.Profile = sketch15
pocket10.setExpression("Length", "Params.pocket10_length")

# Sketch on XZ plane
sketch16 = body.newObject("Sketcher::SketchObject", "Sketch015")
sketch16.AttachmentSupport = (doc.getObject("XZ_Plane"), [""])
sketch16.MapMode = "FlatFace"
add_polygon(sketch16, [(-9.3, 7.5), (-7.6, 10.3), (-4.4, 10.3), (-2.7, 7.5), (-4.4, 4.7), (-7.6, 4.7)])  # lines 0-5
sketch16.addConstraint(Sketcher.Constraint("Horizontal", 1))
sketch16.addConstraint(Sketcher.Constraint("Horizontal", 4))
sketch16.addConstraint(Sketcher.Constraint("Parallel", 0, 3))
sketch16.addConstraint(Sketcher.Constraint("Parallel", 2, 5))
sketch16.addConstraint(Sketcher.Constraint("Horizontal", 2, 2, 5, 2))
sketch16.addConstraint(Sketcher.Constraint("Vertical", 1, 2, 3, 2))
sketch16.addConstraint(Sketcher.Constraint("Vertical", 0, 2, 4, 2))
sketch16.addConstraint(Sketcher.Constraint("DistanceY", 3, 2, 1, 2, 5.7))
sketch16.addConstraint(Sketcher.Constraint("Angle", 0, Q("59.9992 deg")))
sketch16.addConstraint(Sketcher.Constraint("DistanceY", -1, 1, 2, 2, 7.5))
sketch16.addConstraint(Sketcher.Constraint("DistanceX", 1, 1, 1, 2, 3.2908))
sketch16.addConstraint(Sketcher.Constraint("DistanceX", 2, 2, -1, 1, 2.709))
pocket11 = body.newObject("PartDesign::Pocket", "Pocket010")
pocket11.Profile = sketch16
pocket11.setExpression("Length", "Params.pocket11_length")
pocket11.Reversed = True

# Sketch on XY plane
sketch17 = body.newObject("Sketcher::SketchObject", "Sketch016")
sketch17.AttachmentSupport = (doc.getObject("XY_Plane"), [""])
sketch17.MapMode = "FlatFace"
sketch17.AttachmentOffset = App.Placement(Vector(0, 0, 12), App.Rotation())
add_polygon(sketch17, [(0, -6), (12, -6), (12, 0), (0, 0)])  # lines 0-3
sketch17.addConstraint(Sketcher.Constraint("Horizontal", 0))
sketch17.addConstraint(Sketcher.Constraint("Vertical", 1))
sketch17.addConstraint(Sketcher.Constraint("Horizontal", 2))
sketch17.addConstraint(Sketcher.Constraint("Vertical", 3))
sketch17.addConstraint(Sketcher.Constraint("Coincident", 2, 2, -1, 1))
sketch17.addConstraint(Sketcher.Constraint("DistanceX", 0, 1, 0, 2, 12.0))
sketch17.addConstraint(Sketcher.Constraint("DistanceY", 1, 1, 1, 2, 6.0))
sketch17.setExpression("Constraints[9]", "Params.sketch17_width")
sketch17.setExpression("Constraints[10]", "Params.sketch17_height")
pad6 = body.newObject("PartDesign::Pad", "Pad005")
pad6.Profile = sketch17
pad6.setExpression("Length", "Params.pad6_length")

# Sketch on XY plane
sketch18 = body.newObject("Sketcher::SketchObject", "Sketch017")
sketch18.AttachmentSupport = (doc.getObject("XY_Plane"), [""])
sketch18.MapMode = "FlatFace"
sketch18.AttachmentOffset = App.Placement(Vector(0, 0, 21), App.Rotation())
add_polygon(sketch18, [(0, -6), (0, -12), (12, -12), (12, -6)])  # lines 0-3
sketch18.addConstraint(Sketcher.Constraint("Vertical", 0))
sketch18.addConstraint(Sketcher.Constraint("Horizontal", 1))
sketch18.addConstraint(Sketcher.Constraint("Vertical", 2))
sketch18.addConstraint(Sketcher.Constraint("Horizontal", 3))
sketch18.addConstraint(Sketcher.Constraint("PointOnObject", 0, 2, -2))
sketch18.addConstraint(Sketcher.Constraint("DistanceX", 1, 1, 1, 2, 12.0))
sketch18.addConstraint(Sketcher.Constraint("DistanceY", 0, 2, 0, 1, 6.0))
sketch18.addConstraint(Sketcher.Constraint("DistanceY", 0, 2, -1, 1, 12.0))
sketch18.setExpression("Constraints[9]", "Params.sketch18_width")
sketch18.setExpression("Constraints[10]", "Params.sketch18_height")
pocket12 = body.newObject("PartDesign::Pocket", "Pocket011")
pocket12.Profile = sketch18
pocket12.setExpression("Length", "Params.pocket12_length")

# Sketch on XZ plane
sketch19 = body.newObject("Sketcher::SketchObject", "Sketch018")
sketch19.AttachmentSupport = (doc.getObject("XZ_Plane"), [""])
sketch19.MapMode = "FlatFace"
sketch19.AttachmentOffset = App.Placement(Vector(0, 0, 6), App.Rotation())
sketch19.addGeometry(Part.Circle(Vector(6, 16.5, 0), Vector(0, 0, 1), 1.7), False)
sketch19.addConstraint(Sketcher.Constraint("Diameter", 0, 3.45))
sketch19.addConstraint(Sketcher.Constraint("DistanceX", -1, 1, 0, 3, 6.0))
sketch19.addConstraint(Sketcher.Constraint("DistanceY", -1, 1, 0, 3, 16.5))
sketch19.setExpression("Constraints[0]", "Params.sketch19_diameter")
pocket13 = body.newObject("PartDesign::Pocket", "Pocket012")
pocket13.Profile = sketch19
pocket13.setExpression("Length", "Params.pocket13_length")

# Sketch on XZ plane
sketch20 = body.newObject("Sketcher::SketchObject", "Sketch019")
sketch20.AttachmentSupport = (doc.getObject("XZ_Plane"), [""])
sketch20.MapMode = "FlatFace"
add_polygon(sketch20, [(2.7, 16.5), (4.4, 19.4), (7.6, 19.4), (9.3, 16.5), (7.6, 13.7), (4.4, 13.7)])  # lines 0-5
sketch20.addConstraint(Sketcher.Constraint("Horizontal", 1))
sketch20.addConstraint(Sketcher.Constraint("Horizontal", 4))
sketch20.addConstraint(Sketcher.Constraint("Parallel", 0, 3))
sketch20.addConstraint(Sketcher.Constraint("Parallel", 2, 5))
sketch20.addConstraint(Sketcher.Constraint("Horizontal", 2, 2, 5, 2))
sketch20.addConstraint(Sketcher.Constraint("Vertical", 1, 2, 3, 2))
sketch20.addConstraint(Sketcher.Constraint("Vertical", 0, 2, 4, 2))
sketch20.addConstraint(Sketcher.Constraint("DistanceY", 3, 2, 1, 2, 5.7))
sketch20.addConstraint(Sketcher.Constraint("Angle", 0, Q("59.9992 deg")))
sketch20.addConstraint(Sketcher.Constraint("DistanceY", -1, 1, 2, 2, 16.5))
sketch20.addConstraint(Sketcher.Constraint("DistanceX", 1, 1, 1, 2, 3.2908))
sketch20.addConstraint(Sketcher.Constraint("DistanceX", -1, 1, 2, 2, 9.291))
pocket14 = body.newObject("PartDesign::Pocket", "Pocket013")
pocket14.Profile = sketch20
pocket14.setExpression("Length", "Params.pocket14_length")
pocket14.Reversed = True
doc.recompute()

fillet = body.newObject("PartDesign::Fillet", "Fillet")
fillet.Base = (pocket14, edges_at(pocket14, [(0, -12, 0), (12, 0, 0), (0, 6, 0)]))
fillet.setExpression("Radius", "Params.fillet_radius")

doc.recompute()
